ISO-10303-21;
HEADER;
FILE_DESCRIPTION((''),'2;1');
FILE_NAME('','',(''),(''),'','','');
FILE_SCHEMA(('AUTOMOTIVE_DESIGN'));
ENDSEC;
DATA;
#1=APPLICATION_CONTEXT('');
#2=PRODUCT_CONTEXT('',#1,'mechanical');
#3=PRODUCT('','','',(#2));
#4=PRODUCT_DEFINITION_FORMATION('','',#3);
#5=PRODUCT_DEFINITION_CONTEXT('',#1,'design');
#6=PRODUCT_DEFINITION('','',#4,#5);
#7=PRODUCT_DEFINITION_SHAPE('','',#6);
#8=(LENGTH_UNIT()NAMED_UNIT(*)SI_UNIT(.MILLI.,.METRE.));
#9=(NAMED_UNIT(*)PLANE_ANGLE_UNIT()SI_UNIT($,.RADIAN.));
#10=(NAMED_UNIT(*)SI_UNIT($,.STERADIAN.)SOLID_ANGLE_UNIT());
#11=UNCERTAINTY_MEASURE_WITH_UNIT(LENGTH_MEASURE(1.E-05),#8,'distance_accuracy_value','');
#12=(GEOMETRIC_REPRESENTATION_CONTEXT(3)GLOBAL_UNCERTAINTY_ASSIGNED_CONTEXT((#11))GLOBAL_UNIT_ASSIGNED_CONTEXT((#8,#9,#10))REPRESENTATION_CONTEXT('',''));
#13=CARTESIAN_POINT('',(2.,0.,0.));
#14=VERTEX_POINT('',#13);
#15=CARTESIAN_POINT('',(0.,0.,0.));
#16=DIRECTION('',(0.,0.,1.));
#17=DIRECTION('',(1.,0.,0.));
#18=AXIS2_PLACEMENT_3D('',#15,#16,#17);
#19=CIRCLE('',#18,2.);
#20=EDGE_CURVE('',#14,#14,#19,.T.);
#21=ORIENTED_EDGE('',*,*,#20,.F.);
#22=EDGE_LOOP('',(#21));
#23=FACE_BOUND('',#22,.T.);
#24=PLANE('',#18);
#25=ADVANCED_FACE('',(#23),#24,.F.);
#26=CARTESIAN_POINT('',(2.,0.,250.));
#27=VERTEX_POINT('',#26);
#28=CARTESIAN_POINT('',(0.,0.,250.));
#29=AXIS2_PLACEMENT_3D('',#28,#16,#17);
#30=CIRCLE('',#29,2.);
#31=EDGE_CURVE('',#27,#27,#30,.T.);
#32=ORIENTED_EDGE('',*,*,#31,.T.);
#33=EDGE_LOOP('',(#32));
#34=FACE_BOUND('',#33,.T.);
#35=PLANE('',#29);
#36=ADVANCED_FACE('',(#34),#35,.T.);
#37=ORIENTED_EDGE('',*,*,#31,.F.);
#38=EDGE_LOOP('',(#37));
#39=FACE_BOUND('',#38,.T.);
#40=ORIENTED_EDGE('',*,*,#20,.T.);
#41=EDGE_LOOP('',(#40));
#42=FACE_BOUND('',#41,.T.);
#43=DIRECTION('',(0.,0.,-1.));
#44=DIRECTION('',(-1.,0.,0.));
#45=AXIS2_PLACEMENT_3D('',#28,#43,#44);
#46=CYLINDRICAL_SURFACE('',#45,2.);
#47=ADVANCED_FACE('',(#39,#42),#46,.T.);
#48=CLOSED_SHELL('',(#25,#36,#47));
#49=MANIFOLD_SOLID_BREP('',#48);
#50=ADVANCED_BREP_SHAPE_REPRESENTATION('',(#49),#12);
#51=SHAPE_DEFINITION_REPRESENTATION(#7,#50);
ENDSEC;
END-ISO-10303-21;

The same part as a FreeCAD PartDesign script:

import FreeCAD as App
import Part
import Sketcher

doc = App.newDocument("Part")
params = doc.addObject("Spreadsheet::Sheet", "Params")
for row, (alias, value) in enumerate([
    ("sketch1_diameter", "4 mm"),
    ("pad1_length", "250 mm"),
], start=1):
    params.set(f"A{row}", alias)
    params.set(f"B{row}", "=" + value)
    params.setAlias(f"B{row}", alias)

body = doc.addObject("PartDesign::Body", "Body")

# Sketch on XY plane
sketch1 = body.newObject("Sketcher::SketchObject", "Sketch")
sketch1.AttachmentSupport = (doc.getObject("XY_Plane"), [""])
sketch1.MapMode = "FlatFace"
sketch1.addGeometry(Part.Circle(App.Vector(0, 0, 0), App.Vector(0, 0, 1), 2), False)
sketch1.addConstraint([
    Sketcher.Constraint("Coincident", 0, 3, -1, 1),
    Sketcher.Constraint("Diameter", 0, 4.0),
])
sketch1.setExpression("Constraints[1]", "Params.sketch1_diameter")
pad1 = body.newObject("PartDesign::Pad", "Pad")
pad1.Profile = sketch1
pad1.setExpression("Length", "Params.pad1_length")

doc.recompute()
